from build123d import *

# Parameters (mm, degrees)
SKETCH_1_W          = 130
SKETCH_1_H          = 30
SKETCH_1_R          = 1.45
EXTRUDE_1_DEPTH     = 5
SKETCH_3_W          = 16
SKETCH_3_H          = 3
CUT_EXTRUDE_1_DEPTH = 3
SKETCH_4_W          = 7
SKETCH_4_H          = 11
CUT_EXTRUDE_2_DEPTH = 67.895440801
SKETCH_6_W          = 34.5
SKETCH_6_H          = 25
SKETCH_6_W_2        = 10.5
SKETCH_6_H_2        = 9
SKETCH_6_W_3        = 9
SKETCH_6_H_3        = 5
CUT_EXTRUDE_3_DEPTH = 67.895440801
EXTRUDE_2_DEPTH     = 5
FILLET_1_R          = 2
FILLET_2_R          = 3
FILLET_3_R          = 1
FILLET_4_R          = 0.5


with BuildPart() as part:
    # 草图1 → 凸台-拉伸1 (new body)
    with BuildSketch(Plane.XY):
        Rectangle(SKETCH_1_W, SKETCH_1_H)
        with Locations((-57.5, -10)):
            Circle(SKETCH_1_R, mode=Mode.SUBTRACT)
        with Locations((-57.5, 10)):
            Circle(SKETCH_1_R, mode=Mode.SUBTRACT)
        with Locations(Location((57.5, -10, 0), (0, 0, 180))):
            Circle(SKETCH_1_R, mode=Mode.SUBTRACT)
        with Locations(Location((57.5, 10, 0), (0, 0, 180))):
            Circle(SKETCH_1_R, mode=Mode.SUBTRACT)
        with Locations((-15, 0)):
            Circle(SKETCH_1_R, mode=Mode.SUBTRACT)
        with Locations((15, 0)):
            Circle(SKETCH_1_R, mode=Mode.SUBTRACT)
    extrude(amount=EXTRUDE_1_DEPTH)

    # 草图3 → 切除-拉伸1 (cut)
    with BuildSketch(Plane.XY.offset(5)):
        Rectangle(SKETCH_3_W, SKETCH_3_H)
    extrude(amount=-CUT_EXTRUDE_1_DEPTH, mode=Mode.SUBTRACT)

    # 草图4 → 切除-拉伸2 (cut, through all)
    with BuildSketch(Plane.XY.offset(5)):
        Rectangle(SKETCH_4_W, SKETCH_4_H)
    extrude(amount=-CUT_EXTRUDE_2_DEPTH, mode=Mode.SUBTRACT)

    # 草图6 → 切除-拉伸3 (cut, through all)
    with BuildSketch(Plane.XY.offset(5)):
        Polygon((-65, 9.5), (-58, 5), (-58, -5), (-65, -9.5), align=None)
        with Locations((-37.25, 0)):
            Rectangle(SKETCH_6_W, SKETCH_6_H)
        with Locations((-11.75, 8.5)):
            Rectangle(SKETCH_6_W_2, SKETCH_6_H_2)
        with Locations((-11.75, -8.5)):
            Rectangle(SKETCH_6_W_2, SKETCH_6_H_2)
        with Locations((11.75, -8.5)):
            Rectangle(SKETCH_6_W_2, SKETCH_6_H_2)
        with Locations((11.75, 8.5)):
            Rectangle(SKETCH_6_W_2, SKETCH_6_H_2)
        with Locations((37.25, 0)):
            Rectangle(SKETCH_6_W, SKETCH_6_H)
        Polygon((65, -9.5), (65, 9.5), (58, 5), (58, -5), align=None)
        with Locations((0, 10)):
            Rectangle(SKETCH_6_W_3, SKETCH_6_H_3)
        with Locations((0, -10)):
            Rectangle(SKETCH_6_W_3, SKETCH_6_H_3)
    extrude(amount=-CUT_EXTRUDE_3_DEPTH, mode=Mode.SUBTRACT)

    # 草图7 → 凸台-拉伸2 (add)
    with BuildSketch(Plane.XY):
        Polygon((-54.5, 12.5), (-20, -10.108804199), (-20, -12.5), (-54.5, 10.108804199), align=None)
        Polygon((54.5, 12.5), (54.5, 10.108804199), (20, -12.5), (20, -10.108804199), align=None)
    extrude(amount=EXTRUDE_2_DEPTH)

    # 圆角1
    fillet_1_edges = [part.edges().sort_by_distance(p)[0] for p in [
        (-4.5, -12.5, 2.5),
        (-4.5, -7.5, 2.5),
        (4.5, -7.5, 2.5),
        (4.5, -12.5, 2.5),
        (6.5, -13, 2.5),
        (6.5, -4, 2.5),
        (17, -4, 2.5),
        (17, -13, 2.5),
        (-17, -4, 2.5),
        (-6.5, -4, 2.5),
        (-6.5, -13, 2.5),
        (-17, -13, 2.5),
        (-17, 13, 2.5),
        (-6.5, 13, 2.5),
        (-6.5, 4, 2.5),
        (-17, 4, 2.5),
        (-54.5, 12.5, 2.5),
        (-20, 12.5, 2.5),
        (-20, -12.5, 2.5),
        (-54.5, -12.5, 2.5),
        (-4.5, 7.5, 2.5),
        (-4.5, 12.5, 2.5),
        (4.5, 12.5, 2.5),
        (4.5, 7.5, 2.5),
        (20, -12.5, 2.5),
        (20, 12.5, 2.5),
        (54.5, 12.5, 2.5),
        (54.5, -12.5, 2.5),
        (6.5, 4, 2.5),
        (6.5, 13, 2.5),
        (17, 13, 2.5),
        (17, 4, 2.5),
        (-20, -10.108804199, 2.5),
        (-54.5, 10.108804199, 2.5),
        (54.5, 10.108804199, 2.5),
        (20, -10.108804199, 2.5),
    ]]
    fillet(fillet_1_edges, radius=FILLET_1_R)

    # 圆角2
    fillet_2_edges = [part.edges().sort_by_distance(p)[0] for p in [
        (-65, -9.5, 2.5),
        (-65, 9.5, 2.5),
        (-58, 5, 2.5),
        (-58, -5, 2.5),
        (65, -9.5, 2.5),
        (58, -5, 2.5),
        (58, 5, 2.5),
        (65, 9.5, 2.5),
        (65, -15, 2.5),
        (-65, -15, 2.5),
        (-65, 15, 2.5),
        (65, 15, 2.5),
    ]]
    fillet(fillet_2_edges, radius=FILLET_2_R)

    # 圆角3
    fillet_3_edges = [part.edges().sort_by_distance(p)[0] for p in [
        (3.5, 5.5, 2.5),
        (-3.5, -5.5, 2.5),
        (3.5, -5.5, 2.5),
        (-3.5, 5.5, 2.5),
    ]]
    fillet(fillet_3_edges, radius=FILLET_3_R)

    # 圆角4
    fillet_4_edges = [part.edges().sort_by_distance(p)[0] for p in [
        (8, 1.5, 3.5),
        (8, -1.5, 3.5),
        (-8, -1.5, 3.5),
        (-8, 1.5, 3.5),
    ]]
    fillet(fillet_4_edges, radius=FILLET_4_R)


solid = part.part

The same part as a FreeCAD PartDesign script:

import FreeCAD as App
import Part
import Sketcher

V = App.Vector


def edges_at(feature, points):
    """Names of the edges that pass closest to the given points."""
    edges = feature.Shape.Edges
    near = lambda p: min(range(len(edges)), key=lambda i: edges[i].distToShape(Part.Vertex(*p))[0])
    return sorted({f"Edge{near(p) + 1}" for p in points})


def add_polygon(sketch, points):
    """Adds a closed chain of lines whose ends are joined by coincident constraints."""
    first, n = sketch.GeometryCount, len(points)
    for a, b in zip(points, points[1:] + points[:1]):
        sketch.addGeometry(Part.LineSegment(App.Vector(*a, 0), App.Vector(*b, 0)), False)
    for i in range(n):
        sketch.addConstraint(Sketcher.Constraint("Coincident", first + i, 2, first + (i + 1) % n, 1))

doc = App.newDocument("Part")
body = doc.addObject("PartDesign::Body", "Body")

sketch1 = body.newObject("Sketcher::SketchObject", "Sketch")
sketch1.AttachmentSupport = (doc.getObject("XY_Plane"), [""])
sketch1.MapMode = "FlatFace"
add_polygon(sketch1, [(-65, 15), (-65, -15), (65, -15), (65, 15)])
sketch1.addGeometry(Part.Circle(V(-57.5, -10, 0), V(0, 0, 1), 1.4), False)
sketch1.addGeometry(Part.Circle(V(57.5, -10, 0), V(0, 0, 1), 1.4), False)
sketch1.addGeometry(Part.Circle(V(-15, 0, 0), V(0, 0, 1), 1.4), False)
sketch1.addGeometry(Part.Circle(V(-57.5, 10, 0), V(0, 0, 1), 1.4), False)
sketch1.addGeometry(Part.Circle(V(15, 0, 0), V(0, 0, 1), 1.4), False)
sketch1.addGeometry(Part.Circle(V(57.5, 10, 0), V(0, 0, 1), 1.4), False)
sketch1.addConstraint([
    Sketcher.Constraint("Vertical", 0),
    Sketcher.Constraint("Horizontal", 1),
    Sketcher.Constraint("Vertical", 2),
    Sketcher.Constraint("Horizontal", 3),
    Sketcher.Constraint("Equal", 4, 5),
    Sketcher.Constraint("Equal", 5, 6),
    Sketcher.Constraint("Equal", 6, 7),
    Sketcher.Constraint("Equal", 7, 8),
    Sketcher.Constraint("Equal", 8, 9),
    Sketcher.Constraint("Symmetric", 5, 3, 7, 3, -1, 1),
    Sketcher.Constraint("Symmetric", 6, 3, 8, 3, -1, 1),
    Sketcher.Constraint("Symmetric", 4, 3, 9, 3, -1, 1),
    Sketcher.Constraint("Symmetric", 0, 2, 2, 2, -1, 1),
    Sketcher.Constraint("Symmetric", 4, 3, 5, 3, -2),
    Sketcher.Constraint("PointOnObject", 6, 3, -1),
    Sketcher.Constraint("Diameter", 4, 2.9),
    Sketcher.Constraint("DistanceX", 1, 1, 1, 2, 130.0),
    Sketcher.Constraint("DistanceY", 0, 2, 0, 1, 30.0),
    Sketcher.Constraint("DistanceY", 4, 3, -1, 1, 10.0),
    Sketcher.Constraint("DistanceX", 6, 3, -1, 1, 15.0),
    Sketcher.Constraint("DistanceX", 4, 3, 5, 3, 115.0),
])
pad1 = body.newObject("PartDesign::Pad", "Pad")
pad1.Profile = sketch1
pad1.Length = 5

sketch2 = body.newObject("Sketcher::SketchObject", "Sketch001")
sketch2.AttachmentSupport = (doc.getObject("XY_Plane"), [""])
sketch2.MapMode = "FlatFace"
sketch2.AttachmentOffset = App.Placement(V(0, 0, 5), App.Rotation())
add_polygon(sketch2, [(-8, 1.5), (-8, -1.5), (8, -1.5), (8, 1.5)])
sketch2.addConstraint([
    Sketcher.Constraint("Vertical", 0),
    Sketcher.Constraint("Horizontal", 1),
    Sketcher.Constraint("Vertical", 2),
    Sketcher.Constraint("Horizontal", 3),
    Sketcher.Constraint("Symmetric", 0, 2, 2, 2, -1, 1),
    Sketcher.Constraint("DistanceX", 1, 1, 1, 2, 16.0),
    Sketcher.Constraint("DistanceY", 0, 2, 0, 1, 3.0),
])
pocket1 = body.newObject("PartDesign::Pocket", "Pocket")
pocket1.Profile = sketch2
pocket1.Length = 3

sketch3 = body.newObject("Sketcher::SketchObject", "Sketch002")
sketch3.AttachmentSupport = (doc.getObject("XY_Plane"), [""])
sketch3.MapMode = "FlatFace"
sketch3.AttachmentOffset = App.Placement(V(0, 0, 5), App.Rotation())
add_polygon(sketch3, [(-4, 6), (-4, -6), (4, -6), (4, 6)])
sketch3.addConstraint([
    Sketcher.Constraint("Vertical", 0),
    Sketcher.Constraint("Horizontal", 1),
    Sketcher.Constraint("Vertical", 2),
    Sketcher.Constraint("Horizontal", 3),
    Sketcher.Constraint("Symmetric", 0, 2, 2, 2, -1, 1),
    Sketcher.Constraint("DistanceX", 1, 1, 1, 2, 7.0),
    Sketcher.Constraint("DistanceY", 0, 2, 0, 1, 11.0),
])
pocket2 = body.newObject("PartDesign::Pocket", "Pocket001")
pocket2.Profile = sketch3
pocket2.Type = "ThroughAll"

sketch4 = body.newObject("Sketcher::SketchObject", "Sketch003")
sketch4.AttachmentSupport = (doc.getObject("XY_Plane"), [""])
sketch4.MapMode = "FlatFace"
sketch4.AttachmentOffset = App.Placement(V(0, 0, 5), App.Rotation())
add_polygon(sketch4, [(-58, 5), (-65, 10), (-65, -10), (-58, -5)])
add_polygon(sketch4, [(-54, 12), (-54, -12), (-20, -12), (-20, 12)])
add_polygon(sketch4, [(-17, 13), (-17, 4), (-6, 4), (-6, 13)])
add_polygon(sketch4, [(-17, -4), (-17, -13), (-6, -13), (-6, -4)])
add_polygon(sketch4, [(6, -4), (6, -13), (17, -13), (17, -4)])
add_polygon(sketch4, [(6, 13), (6, 4), (17, 4), (17, 13)])
add_polygon(sketch4, [(20, 12), (20, -12), (54, -12), (54, 12)])
add_polygon(sketch4, [(65, -10), (65, 10), (58, 5), (58, -5)])
add_polygon(sketch4, [(-4, 12), (-4, 8), (4, 8), (4, 12)])
add_polygon(sketch4, [(-4, -8), (-4, -12), (4, -12), (4, -8)])
sketch4.addConstraint([
    Sketcher.Constraint("Vertical", 1),
    Sketcher.Constraint("Vertical", 3),
    Sketcher.Constraint("Vertical", 4),
    Sketcher.Constraint("Horizontal", 5),
    Sketcher.Constraint("Vertical", 6),
    Sketcher.Constraint("Horizontal", 7),
    Sketcher.Constraint("Vertical", 8),
    Sketcher.Constraint("Horizontal", 9),
    Sketcher.Constraint("Vertical", 10),
    Sketcher.Constraint("Horizontal", 11),
    Sketcher.Constraint("Vertical", 12),
    Sketcher.Constraint("Horizontal", 13),
    Sketcher.Constraint("Vertical", 14),
    Sketcher.Constraint("Horizontal", 15),
    Sketcher.Constraint("Vertical", 16),
    Sketcher.Constraint("Horizontal", 17),
    Sketcher.Constraint("Vertical", 18),
    Sketcher.Constraint("Horizontal", 19),
    Sketcher.Constraint("Vertical", 20),
    Sketcher.Constraint("Horizontal", 21),
    Sketcher.Constraint("Vertical", 22),
    Sketcher.Constraint("Horizontal", 23),
    Sketcher.Constraint("Vertical", 24),
    Sketcher.Constraint("Horizontal", 25),
    Sketcher.Constraint("Vertical", 26),
    Sketcher.Constraint("Horizontal", 27),
    Sketcher.Constraint("Vertical", 28),
    Sketcher.Constraint("Vertical", 30),
    Sketcher.Constraint("Vertical", 32),
    Sketcher.Constraint("Horizontal", 33),
    Sketcher.Constraint("Vertical", 34),
    Sketcher.Constraint("Horizontal", 35),
    Sketcher.Constraint("Vertical", 36),
    Sketcher.Constraint("Horizontal", 37),
    Sketcher.Constraint("Vertical", 38),
    Sketcher.Constraint("Horizontal", 39),
    Sketcher.Constraint("Symmetric", 10, 2, 16, 2, -1, 1),
    Sketcher.Constraint("Symmetric", 8, 2, 18, 2, -1, 1),
    Sketcher.Constraint("Symmetric", 14, 2, 20, 2, -1, 1),
    Sketcher.Constraint("Symmetric", 12, 2, 22, 2, -1, 1),
    Sketcher.Constraint("Symmetric", 6, 2, 24, 2, -1, 1),
    Sketcher.Constraint("Symmetric", 4, 2, 26, 2, -1, 1),
    Sketcher.Constraint("Symmetric", 1, 2, 28, 2, -1, 1),
    Sketcher.Constraint("Symmetric", 2, 2, 29, 2, -1, 1),
    Sketcher.Constraint("Symmetric", 34, 2, 36, 2, -1, 1),
    Sketcher.Constraint("Symmetric", 32, 2, 38, 2, -1, 1),
    Sketcher.Constraint("Symmetric", 13, 2, 16, 2, -2),
    Sketcher.Constraint("Symmetric", 15, 2, 18, 2, -2),
    Sketcher.Constraint("Parallel", 0, 31),
    Sketcher.Constraint("Horizontal", 5, 2, 24, 2),
    Sketcher.Constraint("Horizontal", 0, 2, 28, 2),
    Sketcher.Constraint("Horizontal", 3, 2, 29, 2),
    Sketcher.Constraint("Horizontal", 2, 2, 30, 2),
    Sketcher.Constraint("Horizontal", 27, 2, 34, 2),
    Sketcher.Constraint("Vertical", 35, 2, 36, 2),
    Sketcher.Constraint("Equal", 39, 8),
    Sketcher.Constraint("DistanceX", 33, 1, 33, 2, 9.0),
    Sketcher.Constraint("DistanceY", 1, 2, 1, 1, 19.0),
    Sketcher.Constraint("DistanceY", 3, 1, 3, 2, 10.0),
    Sketcher.Constraint("DistanceY", 4, 2, 4, 1, 25.0),
    Sketcher.Constraint("DistanceY", 32, 2, 32, 1, 5.0),
    Sketcher.Constraint("DistanceX", 5, 1, 5, 2, 34.5),
    Sketcher.Constraint("DistanceX", 9, 1, 9, 2, 10.5),
    Sketcher.Constraint("DistanceX", 0, 2, -1, 1, 65.0),
    Sketcher.Constraint("DistanceX", 2, 2, -1, 1, 58.0),
    Sketcher.Constraint("DistanceX", 5, 2, -1, 1, 20.0),
    Sketcher.Constraint("DistanceX", 8, 2, -1, 1, 17.0),
    Sketcher.Constraint("DistanceY", -1, 1, 8, 2, 4.0),
])
pocket3 = body.newObject("PartDesign::Pocket", "Pocket002")
pocket3.Profile = sketch4
pocket3.Type = "ThroughAll"

sketch5 = body.newObject("Sketcher::SketchObject", "Sketch004")
sketch5.AttachmentSupport = (doc.getObject("XY_Plane"), [""])
sketch5.MapMode = "FlatFace"
add_polygon(sketch5, [(-20, -10.1), (-54.5, 12.5), (-54.5, 10.1), (-20, -12.5)])
add_polygon(sketch5, [(54.5, 10.1), (54.5, 12.5), (20, -10.1), (20, -12.5)])
sketch5.addConstraint([
    Sketcher.Constraint("Vertical", 1),
    Sketcher.Constraint("Vertical", 3),
    Sketcher.Constraint("Vertical", 4),
    Sketcher.Constraint("Vertical", 6),
    Sketcher.Constraint("Symmetric", 0, 2, 4, 2, -2),
    Sketcher.Constraint("Symmetric", 3, 2, 5, 2, -2),
    Sketcher.Constraint("Parallel", 0, 2),
    Sketcher.Constraint("Parallel", 5, 7),
    Sketcher.Constraint("Horizontal", 2, 2, 6, 2),
    Sketcher.Constraint("DistanceX", 2, 2, -1, 1, 20.0),
    Sketcher.Constraint("DistanceY", 2, 2, 0, 2, 25.0),
    Sketcher.Constraint("DistanceX", 0, 2, 4, 2, 109.0),
    Sketcher.Constraint("DistanceY", -1, 1, 0, 2, 12.5),
    Sketcher.Constraint("DistanceY", 1, 2, 1, 1, 2.391196),
])
pad2 = body.newObject("PartDesign::Pad", "Pad001")
pad2.Profile = sketch5
pad2.Length = 5
doc.recompute()

fillet = body.newObject("PartDesign::Fillet", "Fillet")
fillet.Base = (pad2, edges_at(pad2, [
    (-4.5, -12.5, 2.5),
    (-4.5, -7.5, 2.5),
    (4.5, -7.5, 2.5),
    (4.5, -12.5, 2.5),
    (6.5, -13, 2.5),
    (6.5, -4, 2.5),
    (17, -4, 2.5),
    (17, -13, 2.5),
    (-17, -4, 2.5),
    (-6.5, -4, 2.5),
    (-6.5, -13, 2.5),
    (-17, -13, 2.5),
    (-17, 13, 2.5),
    (-6.5, 13, 2.5),
    (-6.5, 4, 2.5),
    (-17, 4, 2.5),
    (-54.5, 12.5, 2.5),
    (-20, 12.5, 2.5),
    (-20, -12.5, 2.5),
    (-54.5, -12.5, 2.5),
    (-4.5, 7.5, 2.5),
    (-4.5, 12.5, 2.5),
    (4.5, 12.5, 2.5),
    (4.5, 7.5, 2.5),
    (20, -12.5, 2.5),
    (20, 12.5, 2.5),
    (54.5, 12.5, 2.5),
    (54.5, -12.5, 2.5),
    (6.5, 4, 2.5),
    (6.5, 13, 2.5),
    (17, 13, 2.5),
    (17, 4, 2.5),
    (-20, -10.109, 2.5),
    (-54.5, 10.109, 2.5),
    (54.5, 10.109, 2.5),
    (20, -10.109, 2.5),
]))
fillet.Radius = 2
doc.recompute()

fillet2 = body.newObject("PartDesign::Fillet", "Fillet001")
fillet2.Base = (fillet, edges_at(fillet, [
    (-65, -9.5, 2.5),
    (-65, 9.5, 2.5),
    (-58, 5, 2.5),
    (-58, -5, 2.5),
    (65, -9.5, 2.5),
    (58, -5, 2.5),
    (58, 5, 2.5),
    (65, 9.5, 2.5),
    (65, -15, 2.5),
    (-65, -15, 2.5),
    (-65, 15, 2.5),
    (65, 15, 2.5),
]))
fillet2.Radius = 3
doc.recompute()

fillet3 = body.newObject("PartDesign::Fillet", "Fillet002")
fillet3.Base = (fillet2, edges_at(fillet2, [
    (3.5, 5.5, 2.5),
    (-3.5, -5.5, 2.5),
    (3.5, -5.5, 2.5),
    (-3.5, 5.5, 2.5),
]))
fillet3.Radius = 1
doc.recompute()

fillet4 = body.newObject("PartDesign::Fillet", "Fillet003")
fillet4.Base = (fillet3, edges_at(fillet3, [
    (8, 1.5, 3.5),
    (8, -1.5, 3.5),
    (-8, -1.5, 3.5),
    (-8, 1.5, 3.5),
]))
fillet4.Radius = 0.5

doc.recompute()
